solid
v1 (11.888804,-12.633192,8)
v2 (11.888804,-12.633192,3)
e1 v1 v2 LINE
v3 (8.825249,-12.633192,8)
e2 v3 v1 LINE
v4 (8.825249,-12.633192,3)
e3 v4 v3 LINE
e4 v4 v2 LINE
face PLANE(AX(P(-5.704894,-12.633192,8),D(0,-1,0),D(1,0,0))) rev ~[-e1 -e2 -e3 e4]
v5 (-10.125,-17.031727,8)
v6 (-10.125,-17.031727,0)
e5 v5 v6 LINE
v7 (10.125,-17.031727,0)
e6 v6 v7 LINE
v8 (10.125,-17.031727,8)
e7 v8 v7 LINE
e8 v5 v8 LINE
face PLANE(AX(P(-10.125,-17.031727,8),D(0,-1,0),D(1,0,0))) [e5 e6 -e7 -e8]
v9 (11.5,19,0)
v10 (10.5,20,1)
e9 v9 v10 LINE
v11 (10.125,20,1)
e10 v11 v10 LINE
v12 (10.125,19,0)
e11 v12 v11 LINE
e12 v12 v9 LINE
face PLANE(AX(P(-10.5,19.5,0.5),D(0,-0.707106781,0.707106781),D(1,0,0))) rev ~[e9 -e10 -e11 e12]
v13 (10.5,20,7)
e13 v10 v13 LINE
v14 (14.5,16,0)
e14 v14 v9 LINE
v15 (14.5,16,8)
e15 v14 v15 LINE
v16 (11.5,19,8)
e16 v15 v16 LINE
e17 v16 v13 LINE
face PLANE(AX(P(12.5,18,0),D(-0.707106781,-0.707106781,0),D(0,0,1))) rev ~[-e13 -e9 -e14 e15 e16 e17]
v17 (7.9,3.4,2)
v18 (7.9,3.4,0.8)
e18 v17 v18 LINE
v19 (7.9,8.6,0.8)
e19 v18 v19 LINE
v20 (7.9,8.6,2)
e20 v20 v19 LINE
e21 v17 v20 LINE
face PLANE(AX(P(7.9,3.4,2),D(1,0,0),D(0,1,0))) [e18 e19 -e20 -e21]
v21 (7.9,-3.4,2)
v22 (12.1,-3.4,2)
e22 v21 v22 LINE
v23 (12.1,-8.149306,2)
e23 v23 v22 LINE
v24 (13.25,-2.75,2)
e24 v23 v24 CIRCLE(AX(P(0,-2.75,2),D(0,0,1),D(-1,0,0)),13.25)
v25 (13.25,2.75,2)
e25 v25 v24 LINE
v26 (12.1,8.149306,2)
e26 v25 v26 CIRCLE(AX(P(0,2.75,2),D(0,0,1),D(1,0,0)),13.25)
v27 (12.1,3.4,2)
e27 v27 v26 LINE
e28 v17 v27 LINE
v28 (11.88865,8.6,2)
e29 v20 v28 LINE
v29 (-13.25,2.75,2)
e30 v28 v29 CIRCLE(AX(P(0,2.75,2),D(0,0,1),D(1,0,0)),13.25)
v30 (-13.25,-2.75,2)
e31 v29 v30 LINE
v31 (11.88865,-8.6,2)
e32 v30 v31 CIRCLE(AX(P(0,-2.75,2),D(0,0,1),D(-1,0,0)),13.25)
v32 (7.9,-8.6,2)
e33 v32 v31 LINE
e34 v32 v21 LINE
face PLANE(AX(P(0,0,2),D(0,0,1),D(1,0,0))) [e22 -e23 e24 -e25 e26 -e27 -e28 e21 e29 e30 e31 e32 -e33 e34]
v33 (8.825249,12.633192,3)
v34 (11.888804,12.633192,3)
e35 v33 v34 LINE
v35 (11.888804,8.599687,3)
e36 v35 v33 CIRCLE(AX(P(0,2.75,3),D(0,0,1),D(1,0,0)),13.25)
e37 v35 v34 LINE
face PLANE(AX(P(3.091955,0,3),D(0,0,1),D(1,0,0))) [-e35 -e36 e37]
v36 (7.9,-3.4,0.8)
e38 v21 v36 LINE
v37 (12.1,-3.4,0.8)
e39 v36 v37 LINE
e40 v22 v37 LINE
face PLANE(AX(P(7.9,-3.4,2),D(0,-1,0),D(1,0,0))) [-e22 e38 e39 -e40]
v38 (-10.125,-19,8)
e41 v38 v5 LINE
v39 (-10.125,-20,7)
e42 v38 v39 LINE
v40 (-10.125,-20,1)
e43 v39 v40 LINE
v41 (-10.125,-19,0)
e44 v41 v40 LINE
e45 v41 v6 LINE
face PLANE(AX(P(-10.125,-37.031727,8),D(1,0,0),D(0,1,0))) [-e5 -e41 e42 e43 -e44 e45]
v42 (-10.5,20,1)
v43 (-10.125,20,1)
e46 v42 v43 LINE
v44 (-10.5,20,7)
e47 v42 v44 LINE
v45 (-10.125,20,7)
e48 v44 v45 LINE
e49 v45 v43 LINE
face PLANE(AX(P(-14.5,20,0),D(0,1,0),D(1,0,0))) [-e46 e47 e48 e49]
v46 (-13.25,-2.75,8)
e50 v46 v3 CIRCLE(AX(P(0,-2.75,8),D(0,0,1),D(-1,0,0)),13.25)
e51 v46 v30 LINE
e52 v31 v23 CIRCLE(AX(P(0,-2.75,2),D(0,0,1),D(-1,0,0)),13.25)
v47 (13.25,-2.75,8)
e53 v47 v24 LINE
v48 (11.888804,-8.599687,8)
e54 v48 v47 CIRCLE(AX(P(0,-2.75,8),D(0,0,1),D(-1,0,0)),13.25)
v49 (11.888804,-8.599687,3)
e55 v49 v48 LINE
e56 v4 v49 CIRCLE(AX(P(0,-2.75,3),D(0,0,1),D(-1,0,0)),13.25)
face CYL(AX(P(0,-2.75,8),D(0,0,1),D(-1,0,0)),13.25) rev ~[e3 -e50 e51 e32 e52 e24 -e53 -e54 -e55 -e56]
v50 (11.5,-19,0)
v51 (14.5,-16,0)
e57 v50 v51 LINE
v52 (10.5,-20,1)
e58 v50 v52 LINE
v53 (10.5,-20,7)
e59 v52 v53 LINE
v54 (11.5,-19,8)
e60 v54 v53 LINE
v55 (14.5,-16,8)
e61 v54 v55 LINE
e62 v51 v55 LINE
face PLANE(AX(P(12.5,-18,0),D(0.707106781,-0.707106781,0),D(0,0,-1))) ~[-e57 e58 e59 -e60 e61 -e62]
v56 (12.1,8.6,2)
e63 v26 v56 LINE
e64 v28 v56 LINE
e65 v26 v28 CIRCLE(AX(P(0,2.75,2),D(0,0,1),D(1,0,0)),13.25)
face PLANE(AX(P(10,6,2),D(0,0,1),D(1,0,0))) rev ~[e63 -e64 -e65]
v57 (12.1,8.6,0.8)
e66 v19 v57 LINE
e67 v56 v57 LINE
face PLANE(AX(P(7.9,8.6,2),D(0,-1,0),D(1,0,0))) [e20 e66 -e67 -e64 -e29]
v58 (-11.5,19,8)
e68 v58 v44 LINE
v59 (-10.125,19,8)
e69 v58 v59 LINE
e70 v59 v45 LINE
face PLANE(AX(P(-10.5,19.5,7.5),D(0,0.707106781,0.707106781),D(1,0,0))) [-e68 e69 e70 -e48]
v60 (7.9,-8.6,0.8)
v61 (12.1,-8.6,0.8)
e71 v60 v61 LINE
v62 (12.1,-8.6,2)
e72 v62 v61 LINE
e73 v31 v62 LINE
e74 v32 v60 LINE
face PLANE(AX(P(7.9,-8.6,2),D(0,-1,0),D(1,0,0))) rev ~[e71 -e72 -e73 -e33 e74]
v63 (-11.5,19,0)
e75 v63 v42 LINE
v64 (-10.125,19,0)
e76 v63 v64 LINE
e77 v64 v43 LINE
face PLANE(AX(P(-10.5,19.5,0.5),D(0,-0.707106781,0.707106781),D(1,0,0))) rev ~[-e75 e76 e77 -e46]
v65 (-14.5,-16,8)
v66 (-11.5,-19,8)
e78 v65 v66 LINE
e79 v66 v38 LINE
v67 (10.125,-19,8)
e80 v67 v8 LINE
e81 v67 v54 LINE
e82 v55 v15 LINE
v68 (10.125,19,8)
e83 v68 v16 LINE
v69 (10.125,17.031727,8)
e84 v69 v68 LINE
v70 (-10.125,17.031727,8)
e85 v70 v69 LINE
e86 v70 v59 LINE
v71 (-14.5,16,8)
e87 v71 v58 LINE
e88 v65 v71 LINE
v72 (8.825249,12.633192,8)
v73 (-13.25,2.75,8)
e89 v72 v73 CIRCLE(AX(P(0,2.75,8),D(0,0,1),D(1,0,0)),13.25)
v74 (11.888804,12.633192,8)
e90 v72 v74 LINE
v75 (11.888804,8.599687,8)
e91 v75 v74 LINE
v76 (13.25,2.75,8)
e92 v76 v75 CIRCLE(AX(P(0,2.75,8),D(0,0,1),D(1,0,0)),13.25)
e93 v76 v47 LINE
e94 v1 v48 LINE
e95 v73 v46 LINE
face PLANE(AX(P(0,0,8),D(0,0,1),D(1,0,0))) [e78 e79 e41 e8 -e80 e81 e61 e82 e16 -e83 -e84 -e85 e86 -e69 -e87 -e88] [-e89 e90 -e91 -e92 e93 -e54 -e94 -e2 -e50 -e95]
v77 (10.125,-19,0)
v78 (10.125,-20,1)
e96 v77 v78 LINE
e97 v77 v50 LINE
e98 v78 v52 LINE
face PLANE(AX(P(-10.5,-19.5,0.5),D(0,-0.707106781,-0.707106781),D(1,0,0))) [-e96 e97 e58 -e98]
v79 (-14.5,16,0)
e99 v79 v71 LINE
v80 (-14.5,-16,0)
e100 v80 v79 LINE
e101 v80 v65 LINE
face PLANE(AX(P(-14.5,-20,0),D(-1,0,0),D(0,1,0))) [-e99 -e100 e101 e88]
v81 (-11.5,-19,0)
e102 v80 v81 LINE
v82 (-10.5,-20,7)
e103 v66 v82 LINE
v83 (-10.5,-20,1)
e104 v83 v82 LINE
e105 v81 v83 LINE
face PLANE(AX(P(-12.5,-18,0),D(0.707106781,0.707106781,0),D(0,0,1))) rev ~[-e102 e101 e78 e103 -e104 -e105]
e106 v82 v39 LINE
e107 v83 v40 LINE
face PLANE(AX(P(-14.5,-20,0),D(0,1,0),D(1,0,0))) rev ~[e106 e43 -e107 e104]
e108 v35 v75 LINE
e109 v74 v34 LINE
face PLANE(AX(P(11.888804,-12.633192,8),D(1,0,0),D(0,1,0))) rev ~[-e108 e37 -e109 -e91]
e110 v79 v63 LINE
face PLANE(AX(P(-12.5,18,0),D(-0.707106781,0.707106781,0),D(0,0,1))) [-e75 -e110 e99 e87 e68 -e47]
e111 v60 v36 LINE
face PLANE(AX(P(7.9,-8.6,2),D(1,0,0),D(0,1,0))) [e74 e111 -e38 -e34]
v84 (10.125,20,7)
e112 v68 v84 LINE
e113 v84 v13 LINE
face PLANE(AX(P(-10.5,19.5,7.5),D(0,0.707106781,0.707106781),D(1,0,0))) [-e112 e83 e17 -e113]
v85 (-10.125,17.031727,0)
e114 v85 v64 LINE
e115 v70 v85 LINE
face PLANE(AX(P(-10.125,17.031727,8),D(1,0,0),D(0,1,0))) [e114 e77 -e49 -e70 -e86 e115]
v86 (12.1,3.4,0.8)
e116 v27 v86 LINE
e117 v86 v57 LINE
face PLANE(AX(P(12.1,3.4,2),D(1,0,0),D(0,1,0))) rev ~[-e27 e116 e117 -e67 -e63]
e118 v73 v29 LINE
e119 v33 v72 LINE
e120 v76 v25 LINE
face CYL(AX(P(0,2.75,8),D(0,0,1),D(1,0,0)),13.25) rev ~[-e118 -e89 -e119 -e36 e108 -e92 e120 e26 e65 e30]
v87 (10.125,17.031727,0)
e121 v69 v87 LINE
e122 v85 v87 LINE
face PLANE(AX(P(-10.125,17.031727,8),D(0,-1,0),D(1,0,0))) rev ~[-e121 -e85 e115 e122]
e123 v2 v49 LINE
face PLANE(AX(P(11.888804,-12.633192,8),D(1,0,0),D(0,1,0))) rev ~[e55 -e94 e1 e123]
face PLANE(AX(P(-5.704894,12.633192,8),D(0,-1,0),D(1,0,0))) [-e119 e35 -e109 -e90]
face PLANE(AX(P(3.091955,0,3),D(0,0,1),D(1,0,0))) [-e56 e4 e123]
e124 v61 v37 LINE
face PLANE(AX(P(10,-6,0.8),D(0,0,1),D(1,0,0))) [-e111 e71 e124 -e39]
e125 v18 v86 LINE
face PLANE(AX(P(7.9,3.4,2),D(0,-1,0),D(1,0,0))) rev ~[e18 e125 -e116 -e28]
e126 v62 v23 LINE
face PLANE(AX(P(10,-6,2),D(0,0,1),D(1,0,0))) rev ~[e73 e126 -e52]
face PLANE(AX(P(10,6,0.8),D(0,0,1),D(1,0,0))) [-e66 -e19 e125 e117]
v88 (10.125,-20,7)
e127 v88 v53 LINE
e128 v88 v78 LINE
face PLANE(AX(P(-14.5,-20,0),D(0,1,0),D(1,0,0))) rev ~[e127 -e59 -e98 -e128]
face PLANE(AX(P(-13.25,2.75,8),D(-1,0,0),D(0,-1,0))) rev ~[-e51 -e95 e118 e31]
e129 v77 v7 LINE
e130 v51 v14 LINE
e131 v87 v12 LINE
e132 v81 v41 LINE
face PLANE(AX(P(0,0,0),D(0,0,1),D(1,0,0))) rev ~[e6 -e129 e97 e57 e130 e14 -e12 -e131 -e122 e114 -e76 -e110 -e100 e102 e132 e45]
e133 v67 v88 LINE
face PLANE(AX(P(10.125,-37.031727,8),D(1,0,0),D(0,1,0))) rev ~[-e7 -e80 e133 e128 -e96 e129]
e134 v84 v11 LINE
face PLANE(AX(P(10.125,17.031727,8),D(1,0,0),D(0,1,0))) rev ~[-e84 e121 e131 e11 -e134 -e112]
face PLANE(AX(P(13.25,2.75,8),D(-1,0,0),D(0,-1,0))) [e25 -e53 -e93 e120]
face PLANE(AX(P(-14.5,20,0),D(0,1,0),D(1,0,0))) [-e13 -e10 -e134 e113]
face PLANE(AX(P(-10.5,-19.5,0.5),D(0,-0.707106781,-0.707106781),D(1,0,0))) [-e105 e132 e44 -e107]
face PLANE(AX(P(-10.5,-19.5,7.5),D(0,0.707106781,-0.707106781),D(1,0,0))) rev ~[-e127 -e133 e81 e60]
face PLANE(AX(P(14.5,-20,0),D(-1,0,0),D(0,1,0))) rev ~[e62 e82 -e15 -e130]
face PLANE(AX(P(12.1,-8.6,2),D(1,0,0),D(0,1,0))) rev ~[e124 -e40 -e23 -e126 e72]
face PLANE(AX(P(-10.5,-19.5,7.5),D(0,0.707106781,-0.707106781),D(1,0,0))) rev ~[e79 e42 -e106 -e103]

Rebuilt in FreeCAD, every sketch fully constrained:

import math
import FreeCAD as App
import Part
import Sketcher
Q = App.Units.Quantity


def edges_at(feature, points):
    """Names of the edges that pass closest to the given points."""
    edges = feature.Shape.Edges
    near = lambda p: min(range(len(edges)), key=lambda i: edges[i].distToShape(Part.Vertex(*p))[0])
    return sorted({f"Edge{near(p) + 1}" for p in points})


def add_polygon(sketch, points):
    """Adds a closed chain of lines whose ends are joined by coincident constraints."""
    first, n = sketch.GeometryCount, len(points)
    for a, b in zip(points, points[1:] + points[:1]):
        sketch.addGeometry(Part.LineSegment(App.Vector(*a, 0), App.Vector(*b, 0)), False)
    for i in range(n):
        sketch.addConstraint(Sketcher.Constraint("Coincident", first + i, 2, first + (i + 1) % n, 1))

doc = App.newDocument("Part")
body = doc.addObject("PartDesign::Body", "Body")

sketch1 = body.newObject("Sketcher::SketchObject", "Sketch")
sketch1.AttachmentSupport = (doc.getObject("XY_Plane"), [""])
sketch1.MapMode = "FlatFace"
add_polygon(sketch1, [(-14, 20), (-14, -20), (14, -20), (14, 20)])
sketch1.addConstraint([
    Sketcher.Constraint("Vertical", 0),
    Sketcher.Constraint("Horizontal", 1),
    Sketcher.Constraint("Vertical", 2),
    Sketcher.Constraint("Horizontal", 3),
    Sketcher.Constraint("Symmetric", 0, 2, 2, 2, -1, 1),
    Sketcher.Constraint("DistanceX", 1, 1, 1, 2, Q("29 mm")),
    Sketcher.Constraint("DistanceY", 0, 2, 0, 1, Q("40 mm")),
])
pad1 = body.newObject("PartDesign::Pad", "Pad")
pad1.Profile = sketch1
pad1.Length = 8
doc.recompute()

chamfer = body.newObject("PartDesign::Chamfer", "Chamfer")
chamfer.Base = (pad1, edges_at(pad1, [
    (14.5, 20, 4),
    (14.5, -20, 4),
    (-14.5, 20, 4),
    (-14.5, -20, 4),
]))
chamfer.Size = 4
doc.recompute()

chamfer2 = body.newObject("PartDesign::Chamfer", "Chamfer001")
chamfer2.Base = (chamfer, edges_at(chamfer, [
    (0, -20, 0),
    (0, -20, 8),
    (0, 20, 0),
    (0, 20, 8),
]))
chamfer2.Size = 1

sketch2 = body.newObject("Sketcher::SketchObject", "Sketch001")
sketch2.AttachmentSupport = (doc.getObject("XY_Plane"), [""])
sketch2.MapMode = "FlatFace"
sketch2.AttachmentOffset = App.Placement(App.Vector(0, 0, 8), App.Rotation())
add_polygon(sketch2, [(-10, -17), (-10, -37), (10, -37), (10, -17)])
add_polygon(sketch2, [(-10, 37), (-10, 17), (10, 17), (10, 37)])
sketch2.addConstraint([
    Sketcher.Constraint("Vertical", 0),
    Sketcher.Constraint("Horizontal", 1),
    Sketcher.Constraint("Vertical", 2),
    Sketcher.Constraint("Horizontal", 3),
    Sketcher.Constraint("Vertical", 4),
    Sketcher.Constraint("Horizontal", 5),
    Sketcher.Constraint("Vertical", 6),
    Sketcher.Constraint("Horizontal", 7),
    Sketcher.Constraint("Symmetric", 2, 2, 4, 2, -1, 1),
    Sketcher.Constraint("Symmetric", 0, 2, 6, 2, -1, 1),
    Sketcher.Constraint("Vertical", 3, 2, 4, 2),
    Sketcher.Constraint("DistanceY", 0, 2, 0, 1, Q("20 mm")),
    Sketcher.Constraint("DistanceX", 1, 1, 1, 2, Q("20.25 mm")),
    Sketcher.Constraint("DistanceY", 0, 2, -1, 1, Q("37.031727 mm")),
])
pocket1 = body.newObject("PartDesign::Pocket", "Pocket")
pocket1.Profile = sketch2
pocket1.Length = 15

sketch3 = body.newObject("Sketcher::SketchObject", "Sketch002")
sketch3.AttachmentSupport = (doc.getObject("XY_Plane"), [""])
sketch3.MapMode = "FlatFace"
sketch3.AttachmentOffset = App.Placement(App.Vector(0, 0, 8), App.Rotation())
sketch3.addGeometry([
    Part.ArcOfCircle(Part.Circle(App.Vector(0, 3, 0), App.Vector(0, 0, 1), 13), math.radians(0), math.radians(180)),
    Part.LineSegment(App.Vector(-13, 3, 0), App.Vector(-13, -3, 0)),
    Part.ArcOfCircle(Part.Circle(App.Vector(0, -3, 0), App.Vector(0, 0, 1), 13), math.radians(180), math.radians(360)),
    Part.LineSegment(App.Vector(13, -3, 0), App.Vector(13, 3, 0)),
], False)
sketch3.addConstraint([
    Sketcher.Constraint("Tangent", 0, 2, 1, 1),
    Sketcher.Constraint("Tangent", 1, 2, 2, 1),
    Sketcher.Constraint("Tangent", 2, 2, 3, 1),
    Sketcher.Constraint("Tangent", 3, 2, 0, 1),
    Sketcher.Constraint("Vertical", 1),
    Sketcher.Constraint("Vertical", 3),
    Sketcher.Constraint("Symmetric", 0, 3, 2, 3, -1, 1),
    Sketcher.Constraint("Radius", 0, Q("13.25 mm")),
    Sketcher.Constraint("DistanceY", 1, 2, 1, 1, Q("5.5 mm")),
])
pocket2 = body.newObject("PartDesign::Pocket", "Pocket001")
pocket2.Profile = sketch3
pocket2.Length = 6

sketch4 = body.newObject("Sketcher::SketchObject", "Sketch003")
sketch4.AttachmentSupport = (doc.getObject("XY_Plane"), [""])
sketch4.MapMode = "FlatFace"
sketch4.AttachmentOffset = App.Placement(App.Vector(0, 0, 8), App.Rotation())
add_polygon(sketch4, [(-6, 13), (-6, -13), (12, -13), (12, 13)])
sketch4.addConstraint([
    Sketcher.Constraint("Vertical", 0),
    Sketcher.Constraint("Horizontal", 1),
    Sketcher.Constraint("Vertical", 2),
    Sketcher.Constraint("Horizontal", 3),
    Sketcher.Constraint("DistanceX", 1, 1, 1, 2, Q("17.593698 mm")),
    Sketcher.Constraint("DistanceY", 0, 2, 0, 1, Q("25.266384 mm")),
    Sketcher.Constraint("DistanceY", 0, 2, -1, 1, Q("12.633192 mm")),
    Sketcher.Constraint("DistanceX", 0, 2, -1, 1, Q("5.704894 mm")),
])
pocket3 = body.newObject("PartDesign::Pocket", "Pocket002")
pocket3.Profile = sketch4
pocket3.Length = 5

sketch5 = body.newObject("Sketcher::SketchObject", "Sketch004")
sketch5.AttachmentSupport = (doc.getObject("XY_Plane"), [""])
sketch5.MapMode = "FlatFace"
sketch5.AttachmentOffset = App.Placement(App.Vector(0, 0, 2), App.Rotation())
add_polygon(sketch5, [(7.9, -3.4), (7.9, -8.6), (12.1, -8.6), (12.1, -3.4)])
add_polygon(sketch5, [(7.9, 8.6), (7.9, 3.4), (12.1, 3.4), (12.1, 8.6)])
sketch5.addConstraint([
    Sketcher.Constraint("Vertical", 0),
    Sketcher.Constraint("Horizontal", 1),
    Sketcher.Constraint("Vertical", 2),
    Sketcher.Constraint("Horizontal", 3),
    Sketcher.Constraint("Vertical", 4),
    Sketcher.Constraint("Horizontal", 5),
    Sketcher.Constraint("Vertical", 6),
    Sketcher.Constraint("Horizontal", 7),
    Sketcher.Constraint("Symmetric", 3, 2, 4, 2, -1),
    Sketcher.Constraint("Symmetric", 1, 2, 6, 2, -1),
    Sketcher.Constraint("DistanceX", 1, 1, 1, 2, Q("4.2 mm")),
    Sketcher.Constraint("DistanceY", 0, 2, 0, 1, Q("5.2 mm")),
    Sketcher.Constraint("DistanceY", 0, 2, 4, 2, Q("12 mm")),
    Sketcher.Constraint("DistanceX", -1, 1, 0, 2, Q("7.9 mm")),
])
pocket4 = body.newObject("PartDesign::Pocket", "Pocket003")
pocket4.Profile = sketch5
pocket4.Length = 1.2

doc.recompute()
